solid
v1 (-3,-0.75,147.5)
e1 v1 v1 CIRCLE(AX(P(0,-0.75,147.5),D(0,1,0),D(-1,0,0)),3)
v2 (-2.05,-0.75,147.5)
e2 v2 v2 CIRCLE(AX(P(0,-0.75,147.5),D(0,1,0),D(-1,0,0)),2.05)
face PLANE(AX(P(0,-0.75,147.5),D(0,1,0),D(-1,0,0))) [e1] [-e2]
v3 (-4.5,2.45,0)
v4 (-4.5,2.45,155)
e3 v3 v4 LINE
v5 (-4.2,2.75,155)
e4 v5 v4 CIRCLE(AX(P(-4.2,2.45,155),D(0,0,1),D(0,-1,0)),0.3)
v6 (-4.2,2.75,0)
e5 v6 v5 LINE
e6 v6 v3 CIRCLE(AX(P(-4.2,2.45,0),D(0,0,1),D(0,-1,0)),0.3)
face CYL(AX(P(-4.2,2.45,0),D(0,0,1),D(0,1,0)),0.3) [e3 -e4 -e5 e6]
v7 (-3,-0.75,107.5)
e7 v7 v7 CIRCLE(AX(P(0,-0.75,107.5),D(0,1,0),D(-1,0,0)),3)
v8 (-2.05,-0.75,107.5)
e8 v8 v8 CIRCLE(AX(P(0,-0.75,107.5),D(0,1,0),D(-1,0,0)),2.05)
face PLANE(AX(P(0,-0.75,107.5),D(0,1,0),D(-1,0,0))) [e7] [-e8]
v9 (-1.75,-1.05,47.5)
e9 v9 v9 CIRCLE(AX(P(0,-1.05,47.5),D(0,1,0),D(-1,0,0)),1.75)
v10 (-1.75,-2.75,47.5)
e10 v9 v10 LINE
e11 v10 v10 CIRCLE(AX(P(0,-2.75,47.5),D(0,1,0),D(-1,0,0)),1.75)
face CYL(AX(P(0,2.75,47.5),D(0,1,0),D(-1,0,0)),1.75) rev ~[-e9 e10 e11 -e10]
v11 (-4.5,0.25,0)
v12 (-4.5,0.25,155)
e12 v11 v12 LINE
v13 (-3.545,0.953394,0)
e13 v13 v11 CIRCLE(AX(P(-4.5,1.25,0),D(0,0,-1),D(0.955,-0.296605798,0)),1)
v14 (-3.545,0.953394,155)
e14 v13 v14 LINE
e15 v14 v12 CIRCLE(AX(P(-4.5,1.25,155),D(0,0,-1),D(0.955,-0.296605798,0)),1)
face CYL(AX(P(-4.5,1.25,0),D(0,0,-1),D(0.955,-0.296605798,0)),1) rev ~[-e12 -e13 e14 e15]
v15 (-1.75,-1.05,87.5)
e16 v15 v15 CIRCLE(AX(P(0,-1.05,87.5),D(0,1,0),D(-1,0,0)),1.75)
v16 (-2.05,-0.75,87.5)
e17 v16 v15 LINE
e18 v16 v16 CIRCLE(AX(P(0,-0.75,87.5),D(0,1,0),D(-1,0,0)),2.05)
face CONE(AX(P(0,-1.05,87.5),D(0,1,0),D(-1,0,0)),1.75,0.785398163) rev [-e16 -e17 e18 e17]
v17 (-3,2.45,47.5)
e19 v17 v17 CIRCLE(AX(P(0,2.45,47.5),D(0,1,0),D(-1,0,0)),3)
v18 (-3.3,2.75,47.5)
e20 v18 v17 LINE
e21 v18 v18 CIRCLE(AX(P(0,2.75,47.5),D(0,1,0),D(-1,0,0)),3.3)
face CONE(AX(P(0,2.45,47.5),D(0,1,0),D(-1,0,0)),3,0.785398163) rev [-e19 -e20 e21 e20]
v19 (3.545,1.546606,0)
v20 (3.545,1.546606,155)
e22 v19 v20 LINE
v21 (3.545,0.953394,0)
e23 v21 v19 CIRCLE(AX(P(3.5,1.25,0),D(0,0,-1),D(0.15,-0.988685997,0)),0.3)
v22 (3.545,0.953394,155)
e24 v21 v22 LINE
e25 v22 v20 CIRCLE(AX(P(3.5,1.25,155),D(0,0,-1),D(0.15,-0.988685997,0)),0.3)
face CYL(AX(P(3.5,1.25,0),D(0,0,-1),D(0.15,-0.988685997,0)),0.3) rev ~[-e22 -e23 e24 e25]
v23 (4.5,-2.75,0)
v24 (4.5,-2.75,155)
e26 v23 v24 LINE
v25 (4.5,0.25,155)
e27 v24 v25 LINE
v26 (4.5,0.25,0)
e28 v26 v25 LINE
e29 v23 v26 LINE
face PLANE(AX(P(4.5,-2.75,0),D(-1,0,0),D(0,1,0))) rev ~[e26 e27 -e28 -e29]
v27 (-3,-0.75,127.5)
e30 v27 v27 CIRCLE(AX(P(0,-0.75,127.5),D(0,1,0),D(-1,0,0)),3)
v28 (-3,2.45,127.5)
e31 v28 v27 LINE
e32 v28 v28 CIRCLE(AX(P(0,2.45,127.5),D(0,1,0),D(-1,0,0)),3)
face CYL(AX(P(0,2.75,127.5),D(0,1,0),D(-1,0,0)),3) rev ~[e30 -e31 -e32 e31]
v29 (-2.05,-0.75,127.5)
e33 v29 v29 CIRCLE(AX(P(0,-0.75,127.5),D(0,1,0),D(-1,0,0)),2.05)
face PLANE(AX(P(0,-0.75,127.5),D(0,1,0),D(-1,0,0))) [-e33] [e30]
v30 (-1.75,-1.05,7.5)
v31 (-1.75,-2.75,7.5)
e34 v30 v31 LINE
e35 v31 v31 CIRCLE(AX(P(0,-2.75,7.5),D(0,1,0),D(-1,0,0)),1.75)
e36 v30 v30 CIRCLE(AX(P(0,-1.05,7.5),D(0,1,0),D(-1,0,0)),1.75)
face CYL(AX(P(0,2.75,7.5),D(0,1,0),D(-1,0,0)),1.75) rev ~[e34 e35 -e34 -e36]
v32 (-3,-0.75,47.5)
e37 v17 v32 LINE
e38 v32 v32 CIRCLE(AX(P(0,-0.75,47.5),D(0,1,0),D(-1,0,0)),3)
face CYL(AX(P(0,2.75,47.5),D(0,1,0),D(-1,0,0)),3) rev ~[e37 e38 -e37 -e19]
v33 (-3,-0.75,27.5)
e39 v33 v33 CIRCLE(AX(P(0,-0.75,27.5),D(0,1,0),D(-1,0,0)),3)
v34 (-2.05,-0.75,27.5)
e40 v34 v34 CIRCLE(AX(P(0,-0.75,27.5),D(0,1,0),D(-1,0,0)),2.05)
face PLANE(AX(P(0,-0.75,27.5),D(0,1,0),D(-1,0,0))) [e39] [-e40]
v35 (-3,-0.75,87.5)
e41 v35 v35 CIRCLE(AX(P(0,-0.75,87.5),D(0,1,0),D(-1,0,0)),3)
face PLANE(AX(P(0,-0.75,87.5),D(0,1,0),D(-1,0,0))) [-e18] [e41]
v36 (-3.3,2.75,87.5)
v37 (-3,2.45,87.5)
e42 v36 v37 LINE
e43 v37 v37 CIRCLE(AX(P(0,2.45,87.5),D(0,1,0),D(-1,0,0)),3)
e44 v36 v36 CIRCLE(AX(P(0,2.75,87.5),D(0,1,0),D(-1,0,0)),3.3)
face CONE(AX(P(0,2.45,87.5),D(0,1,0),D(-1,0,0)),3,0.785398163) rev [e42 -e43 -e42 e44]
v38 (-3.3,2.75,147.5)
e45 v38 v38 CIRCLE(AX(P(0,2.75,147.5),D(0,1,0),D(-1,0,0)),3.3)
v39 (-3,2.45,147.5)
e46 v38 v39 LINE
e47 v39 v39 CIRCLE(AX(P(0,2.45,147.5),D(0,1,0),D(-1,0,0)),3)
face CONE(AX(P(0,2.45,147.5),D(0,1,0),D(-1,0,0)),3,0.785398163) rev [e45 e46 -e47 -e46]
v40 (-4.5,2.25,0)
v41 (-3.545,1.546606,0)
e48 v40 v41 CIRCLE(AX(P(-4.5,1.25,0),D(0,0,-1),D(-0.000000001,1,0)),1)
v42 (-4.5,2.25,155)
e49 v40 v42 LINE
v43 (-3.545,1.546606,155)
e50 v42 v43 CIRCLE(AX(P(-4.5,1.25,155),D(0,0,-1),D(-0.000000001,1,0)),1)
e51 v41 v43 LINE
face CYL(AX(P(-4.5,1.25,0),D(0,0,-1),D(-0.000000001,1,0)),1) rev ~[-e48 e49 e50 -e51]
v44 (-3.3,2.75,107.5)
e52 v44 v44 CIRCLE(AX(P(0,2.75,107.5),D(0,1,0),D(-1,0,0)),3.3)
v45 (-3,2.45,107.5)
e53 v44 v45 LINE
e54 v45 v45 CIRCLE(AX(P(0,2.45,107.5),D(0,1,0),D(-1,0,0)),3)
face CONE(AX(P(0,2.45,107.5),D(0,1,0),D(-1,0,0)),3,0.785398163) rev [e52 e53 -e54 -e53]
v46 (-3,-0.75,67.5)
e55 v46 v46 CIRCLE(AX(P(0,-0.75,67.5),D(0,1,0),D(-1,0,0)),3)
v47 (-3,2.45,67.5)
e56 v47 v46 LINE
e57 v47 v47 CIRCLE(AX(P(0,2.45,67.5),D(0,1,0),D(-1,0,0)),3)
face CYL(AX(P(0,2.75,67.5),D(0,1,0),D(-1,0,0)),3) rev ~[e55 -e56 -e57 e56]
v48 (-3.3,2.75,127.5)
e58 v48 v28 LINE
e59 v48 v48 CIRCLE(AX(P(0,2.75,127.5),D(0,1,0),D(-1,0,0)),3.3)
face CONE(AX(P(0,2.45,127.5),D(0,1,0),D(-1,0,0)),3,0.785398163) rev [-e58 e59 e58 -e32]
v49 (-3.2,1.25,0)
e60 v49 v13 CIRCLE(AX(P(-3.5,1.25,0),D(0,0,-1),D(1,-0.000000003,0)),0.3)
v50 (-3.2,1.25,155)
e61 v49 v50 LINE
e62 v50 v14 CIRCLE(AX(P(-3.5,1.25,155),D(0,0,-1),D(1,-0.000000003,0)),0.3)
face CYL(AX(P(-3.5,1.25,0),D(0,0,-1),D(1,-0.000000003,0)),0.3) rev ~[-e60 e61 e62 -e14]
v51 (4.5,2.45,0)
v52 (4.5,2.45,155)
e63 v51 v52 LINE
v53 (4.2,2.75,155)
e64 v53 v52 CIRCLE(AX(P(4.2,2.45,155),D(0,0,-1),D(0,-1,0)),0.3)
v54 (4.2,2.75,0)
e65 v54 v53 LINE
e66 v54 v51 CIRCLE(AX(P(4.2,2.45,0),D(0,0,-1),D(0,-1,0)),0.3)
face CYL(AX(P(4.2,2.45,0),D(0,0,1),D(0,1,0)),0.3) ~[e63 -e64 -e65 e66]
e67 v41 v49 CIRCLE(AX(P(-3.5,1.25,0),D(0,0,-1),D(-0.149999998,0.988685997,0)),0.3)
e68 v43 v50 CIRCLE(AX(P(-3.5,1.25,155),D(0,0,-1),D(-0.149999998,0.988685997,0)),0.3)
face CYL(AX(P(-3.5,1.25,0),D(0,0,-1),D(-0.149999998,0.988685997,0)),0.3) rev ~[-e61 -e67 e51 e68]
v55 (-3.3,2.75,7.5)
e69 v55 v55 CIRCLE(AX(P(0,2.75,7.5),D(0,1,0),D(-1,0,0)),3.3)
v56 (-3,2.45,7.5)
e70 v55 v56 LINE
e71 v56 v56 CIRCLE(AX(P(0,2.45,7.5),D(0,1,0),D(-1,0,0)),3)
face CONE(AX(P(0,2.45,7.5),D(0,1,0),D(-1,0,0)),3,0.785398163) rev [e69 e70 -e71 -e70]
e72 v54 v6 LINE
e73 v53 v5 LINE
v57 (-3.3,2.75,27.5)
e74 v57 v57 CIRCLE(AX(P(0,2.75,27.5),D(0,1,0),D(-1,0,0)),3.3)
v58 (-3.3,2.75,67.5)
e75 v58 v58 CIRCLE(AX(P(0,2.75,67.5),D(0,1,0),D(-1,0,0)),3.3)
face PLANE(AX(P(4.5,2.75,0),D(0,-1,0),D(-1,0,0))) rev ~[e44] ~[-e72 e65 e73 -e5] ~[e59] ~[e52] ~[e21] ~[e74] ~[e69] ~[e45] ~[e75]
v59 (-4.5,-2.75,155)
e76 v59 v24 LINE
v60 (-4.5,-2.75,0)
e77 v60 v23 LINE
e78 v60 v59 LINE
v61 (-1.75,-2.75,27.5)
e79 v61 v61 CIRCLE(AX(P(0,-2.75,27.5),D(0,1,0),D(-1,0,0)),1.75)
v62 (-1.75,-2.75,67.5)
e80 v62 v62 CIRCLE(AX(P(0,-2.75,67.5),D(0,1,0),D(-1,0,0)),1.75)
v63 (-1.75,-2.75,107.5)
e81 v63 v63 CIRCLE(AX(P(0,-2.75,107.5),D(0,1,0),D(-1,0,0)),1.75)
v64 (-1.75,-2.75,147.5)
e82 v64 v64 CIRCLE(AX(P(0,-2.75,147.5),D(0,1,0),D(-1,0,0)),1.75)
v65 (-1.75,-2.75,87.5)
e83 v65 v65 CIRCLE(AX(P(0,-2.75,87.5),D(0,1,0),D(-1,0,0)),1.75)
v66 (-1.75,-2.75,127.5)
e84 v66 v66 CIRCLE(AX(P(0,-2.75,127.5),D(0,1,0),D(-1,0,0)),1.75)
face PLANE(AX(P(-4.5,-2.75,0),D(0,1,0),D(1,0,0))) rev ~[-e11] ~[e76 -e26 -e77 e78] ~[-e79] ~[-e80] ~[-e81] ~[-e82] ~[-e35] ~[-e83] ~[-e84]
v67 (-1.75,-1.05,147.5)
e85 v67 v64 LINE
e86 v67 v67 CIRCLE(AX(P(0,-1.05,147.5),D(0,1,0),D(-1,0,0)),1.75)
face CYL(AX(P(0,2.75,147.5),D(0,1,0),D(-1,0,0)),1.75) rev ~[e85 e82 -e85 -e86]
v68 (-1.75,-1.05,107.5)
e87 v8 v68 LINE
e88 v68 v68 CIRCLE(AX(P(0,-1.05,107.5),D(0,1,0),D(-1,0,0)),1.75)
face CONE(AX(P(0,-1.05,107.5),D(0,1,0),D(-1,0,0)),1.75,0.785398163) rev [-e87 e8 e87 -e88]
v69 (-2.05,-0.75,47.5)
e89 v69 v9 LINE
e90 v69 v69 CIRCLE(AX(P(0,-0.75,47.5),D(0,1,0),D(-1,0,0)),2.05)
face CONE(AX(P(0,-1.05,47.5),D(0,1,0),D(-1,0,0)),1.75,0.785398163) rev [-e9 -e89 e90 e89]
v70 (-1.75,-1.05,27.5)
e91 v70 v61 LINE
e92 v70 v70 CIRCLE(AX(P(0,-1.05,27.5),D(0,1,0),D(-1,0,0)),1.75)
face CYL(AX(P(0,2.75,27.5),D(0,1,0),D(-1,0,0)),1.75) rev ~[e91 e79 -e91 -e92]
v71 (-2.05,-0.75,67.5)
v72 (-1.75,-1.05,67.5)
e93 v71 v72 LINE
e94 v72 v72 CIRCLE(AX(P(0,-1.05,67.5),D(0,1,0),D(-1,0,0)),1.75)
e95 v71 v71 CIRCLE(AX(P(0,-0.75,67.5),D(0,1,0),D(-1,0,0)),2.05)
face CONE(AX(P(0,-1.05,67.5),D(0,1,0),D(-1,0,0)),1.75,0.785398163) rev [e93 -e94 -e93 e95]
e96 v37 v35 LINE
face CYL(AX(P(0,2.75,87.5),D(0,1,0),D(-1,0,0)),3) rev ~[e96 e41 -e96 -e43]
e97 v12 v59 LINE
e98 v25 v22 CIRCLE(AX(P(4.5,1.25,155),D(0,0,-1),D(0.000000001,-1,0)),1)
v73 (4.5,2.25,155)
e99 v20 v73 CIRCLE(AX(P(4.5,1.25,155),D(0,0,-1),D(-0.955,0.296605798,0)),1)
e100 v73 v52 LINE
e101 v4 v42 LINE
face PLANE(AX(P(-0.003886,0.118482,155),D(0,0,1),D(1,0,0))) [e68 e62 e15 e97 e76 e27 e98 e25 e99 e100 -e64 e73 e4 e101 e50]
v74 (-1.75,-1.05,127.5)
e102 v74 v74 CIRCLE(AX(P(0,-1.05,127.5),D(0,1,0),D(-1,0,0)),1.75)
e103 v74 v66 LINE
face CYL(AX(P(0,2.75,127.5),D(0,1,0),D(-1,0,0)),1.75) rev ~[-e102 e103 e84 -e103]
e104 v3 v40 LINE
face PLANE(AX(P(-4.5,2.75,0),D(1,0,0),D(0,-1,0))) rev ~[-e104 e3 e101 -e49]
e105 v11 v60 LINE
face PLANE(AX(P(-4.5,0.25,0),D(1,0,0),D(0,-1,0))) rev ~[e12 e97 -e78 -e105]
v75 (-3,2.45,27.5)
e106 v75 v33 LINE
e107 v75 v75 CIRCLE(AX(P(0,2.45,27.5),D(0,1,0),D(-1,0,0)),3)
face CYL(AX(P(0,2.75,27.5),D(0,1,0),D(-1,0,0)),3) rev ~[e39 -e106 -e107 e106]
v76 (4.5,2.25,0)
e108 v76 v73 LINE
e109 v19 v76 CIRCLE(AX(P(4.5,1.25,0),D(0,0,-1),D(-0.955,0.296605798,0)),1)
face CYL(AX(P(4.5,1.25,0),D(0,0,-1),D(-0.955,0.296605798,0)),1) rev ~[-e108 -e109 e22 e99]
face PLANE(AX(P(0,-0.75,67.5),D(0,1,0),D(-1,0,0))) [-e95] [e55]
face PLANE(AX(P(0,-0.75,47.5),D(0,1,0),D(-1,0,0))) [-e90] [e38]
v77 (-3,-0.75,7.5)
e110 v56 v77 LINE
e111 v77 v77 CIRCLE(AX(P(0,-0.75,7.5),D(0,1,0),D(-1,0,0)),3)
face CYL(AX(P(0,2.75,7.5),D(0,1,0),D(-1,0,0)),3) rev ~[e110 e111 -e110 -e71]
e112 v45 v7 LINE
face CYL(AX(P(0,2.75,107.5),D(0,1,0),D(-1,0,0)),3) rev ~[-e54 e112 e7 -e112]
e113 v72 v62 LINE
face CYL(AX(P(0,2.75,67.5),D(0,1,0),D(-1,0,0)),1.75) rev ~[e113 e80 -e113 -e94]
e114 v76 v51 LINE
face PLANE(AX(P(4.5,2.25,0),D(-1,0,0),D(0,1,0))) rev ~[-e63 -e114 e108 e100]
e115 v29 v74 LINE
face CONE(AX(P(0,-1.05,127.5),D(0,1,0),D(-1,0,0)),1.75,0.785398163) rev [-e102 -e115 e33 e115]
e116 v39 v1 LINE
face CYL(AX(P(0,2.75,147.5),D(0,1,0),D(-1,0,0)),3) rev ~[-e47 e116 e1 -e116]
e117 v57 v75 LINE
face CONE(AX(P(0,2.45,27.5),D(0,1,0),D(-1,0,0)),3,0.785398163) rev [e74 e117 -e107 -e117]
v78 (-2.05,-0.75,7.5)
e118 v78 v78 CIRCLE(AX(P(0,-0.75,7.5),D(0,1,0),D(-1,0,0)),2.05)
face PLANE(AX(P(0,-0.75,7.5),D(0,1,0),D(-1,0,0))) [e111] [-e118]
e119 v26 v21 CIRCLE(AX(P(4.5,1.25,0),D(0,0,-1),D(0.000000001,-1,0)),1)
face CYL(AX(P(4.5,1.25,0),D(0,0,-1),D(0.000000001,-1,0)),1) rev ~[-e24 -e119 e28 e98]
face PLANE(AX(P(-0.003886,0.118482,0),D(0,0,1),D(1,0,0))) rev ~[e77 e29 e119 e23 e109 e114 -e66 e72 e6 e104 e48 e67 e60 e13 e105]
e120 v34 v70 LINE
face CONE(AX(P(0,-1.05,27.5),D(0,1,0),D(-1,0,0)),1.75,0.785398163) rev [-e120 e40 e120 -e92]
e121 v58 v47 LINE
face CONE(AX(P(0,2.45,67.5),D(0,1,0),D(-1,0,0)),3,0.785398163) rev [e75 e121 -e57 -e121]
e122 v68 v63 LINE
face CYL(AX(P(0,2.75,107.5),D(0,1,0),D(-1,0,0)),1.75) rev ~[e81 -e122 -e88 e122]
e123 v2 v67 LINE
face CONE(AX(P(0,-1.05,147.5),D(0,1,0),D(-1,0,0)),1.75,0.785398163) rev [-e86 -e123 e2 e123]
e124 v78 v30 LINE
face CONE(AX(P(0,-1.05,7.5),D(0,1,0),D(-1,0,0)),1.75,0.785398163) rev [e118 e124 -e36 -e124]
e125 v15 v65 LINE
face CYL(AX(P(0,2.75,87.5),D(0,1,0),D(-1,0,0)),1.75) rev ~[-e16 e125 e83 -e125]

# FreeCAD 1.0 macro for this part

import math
import FreeCAD as App
import Part
import Sketcher


def edges_at(feature, points):
    """Names of the edges that pass closest to the given points."""
    edges = feature.Shape.Edges
    near = lambda p: min(range(len(edges)), key=lambda i: edges[i].distToShape(Part.Vertex(*p))[0])
    return sorted({f"Edge{near(p) + 1}" for p in points})

doc = App.newDocument("Part")
body = doc.addObject("PartDesign::Body", "Body")

# Sketch on XY plane
sketch1 = doc.addObject("Sketcher::SketchObject", "Sketch")
body.addObject(sketch1)
sketch1.AttachmentSupport = (doc.XY_Plane, [""])
sketch1.MapMode = "FlatFace"
sketch1.addGeometry([
    Part.LineSegment(App.Vector(4.5, 2.75, 0), App.Vector(-4.5, 2.75, 0)),  # 0
    Part.LineSegment(App.Vector(-4.5, 2.75, 0), App.Vector(-4.5, 2.25, 0)),  # 1
    Part.ArcOfCircle(Part.Circle(App.Vector(-4.5, 1.25, 0), App.Vector(0, 0, 1), 1), math.radians(17), math.radians(90)),  # 2
    Part.ArcOfCircle(Part.Circle(App.Vector(-3.5, 1.25, 0), App.Vector(0, 0, 1), 0.3), math.radians(0), math.radians(99)),  # 3
    Part.ArcOfCircle(Part.Circle(App.Vector(-3.5, 1.25, 0), App.Vector(0, 0, 1), 0.3), math.radians(-99), math.radians(0)),  # 4
    Part.ArcOfCircle(Part.Circle(App.Vector(-4.5, 1.25, 0), App.Vector(0, 0, 1), 1), math.radians(-90), math.radians(-17)),  # 5
    Part.LineSegment(App.Vector(-4.5, 0.25, 0), App.Vector(-4.5, -2.75, 0)),  # 6
    Part.LineSegment(App.Vector(-4.5, -2.75, 0), App.Vector(4.5, -2.75, 0)),  # 7
    Part.LineSegment(App.Vector(4.5, -2.75, 0), App.Vector(4.5, 0.25, 0)),  # 8
    Part.ArcOfCircle(Part.Circle(App.Vector(4.5, 1.25, 0), App.Vector(0, 0, 1), 1), math.radians(-163), math.radians(-90)),  # 9
    Part.ArcOfCircle(Part.Circle(App.Vector(3.5, 1.25, 0), App.Vector(0, 0, 1), 0.3), math.radians(81), math.radians(279)),  # 10
    Part.ArcOfCircle(Part.Circle(App.Vector(4.5, 1.25, 0), App.Vector(0, 0, 1), 1), math.radians(90), math.radians(163)),  # 11
    Part.LineSegment(App.Vector(4.5, 2.25, 0), App.Vector(4.5, 2.75, 0)),  # 12
], False)
sketch1.addConstraint([
    Sketcher.Constraint("Coincident", 0, 2, 1, 1),
    Sketcher.Constraint("Coincident", 1, 2, 2, 2),
    Sketcher.Constraint("Coincident", 2, 1, 3, 2),
    Sketcher.Constraint("Tangent", 3, 1, 4, 2),
    Sketcher.Constraint("Coincident", 4, 1, 5, 2),
    Sketcher.Constraint("Coincident", 5, 1, 6, 1),
    Sketcher.Constraint("Coincident", 6, 2, 7, 1),
    Sketcher.Constraint("Coincident", 7, 2, 8, 1),
    Sketcher.Constraint("Coincident", 8, 2, 9, 2),
    Sketcher.Constraint("Coincident", 9, 1, 10, 2),
    Sketcher.Constraint("Coincident", 10, 1, 11, 2),
    Sketcher.Constraint("Coincident", 11, 1, 12, 1),
    Sketcher.Constraint("Coincident", 12, 2, 0, 1),
    Sketcher.Constraint("Horizontal", 0),
    Sketcher.Constraint("Vertical", 1),
    Sketcher.Constraint("Vertical", 6),
    Sketcher.Constraint("Horizontal", 7),
    Sketcher.Constraint("Vertical", 8),
    Sketcher.Constraint("Vertical", 12),
    Sketcher.Constraint("Coincident", 5, 3, 2, 3),
    Sketcher.Constraint("Coincident", 11, 3, 9, 3),
    Sketcher.Constraint("Equal", 3, 4),
    Sketcher.Constraint("Equal", 2, 5),
    Sketcher.Constraint("Equal", 5, 9),
    Sketcher.Constraint("Equal", 4, 10),
    Sketcher.Constraint("Equal", 9, 11),
    Sketcher.Constraint("Symmetric", 0, 2, 7, 2, -1, 1),
    Sketcher.Constraint("Symmetric", 2, 3, 9, 3, -2),
    Sketcher.Constraint("Symmetric", 3, 3, 10, 3, -2),
    Sketcher.Constraint("Horizontal", 2, 3, 3, 3),
    Sketcher.Constraint("Horizontal", 11, 3, 3, 1),
    Sketcher.Constraint("Vertical", 5, 3, 0, 2),
    Sketcher.Constraint("Vertical", 1, 2, 5, 1),
    Sketcher.Constraint("Vertical", 8, 2, 11, 1),
    Sketcher.Constraint("Radius", 2, 1.0),
    Sketcher.Constraint("Radius", 3, 0.3),
    Sketcher.Constraint("DistanceX", 0, 2, 0, 1, 9.0),
    Sketcher.Constraint("DistanceY", 6, 2, 6, 1, 3.0),
    Sketcher.Constraint("DistanceY", 1, 2, 1, 1, 0.5),
    Sketcher.Constraint("DistanceX", 2, 3, 3, 3, 1.0),
])
pad1 = doc.addObject("PartDesign::Pad", "Pad")
body.addObject(pad1)
pad1.Profile = sketch1
pad1.Length = 155
doc.recompute()

fillet = doc.addObject("PartDesign::Fillet", "Fillet")
body.addObject(fillet)
fillet.Base = (pad1, edges_at(pad1, [(-4.5, 2.75, 77.5), (4.5, 2.75, 77.5)]))
fillet.Radius = 0.3

# Sketch on XZ plane
sketch2 = doc.addObject("Sketcher::SketchObject", "Sketch001")
body.addObject(sketch2)
sketch2.AttachmentSupport = (doc.XZ_Plane, [""])
sketch2.MapMode = "FlatFace"
sketch2.AttachmentOffset = App.Placement(App.Vector(0, 0, -2.75), App.Rotation())
sketch2.addGeometry(Part.Circle(App.Vector(0, 7.5, 0), App.Vector(0, 0, 1), 1.8), False)
sketch2.addConstraint([
    Sketcher.Constraint("PointOnObject", 0, 3, -2),
    Sketcher.Constraint("Diameter", 0, 3.5),
    Sketcher.Constraint("DistanceY", -1, 1, 0, 3, 7.5),
])
pocket1 = doc.addObject("PartDesign::Pocket", "Pocket")
body.addObject(pocket1)
pocket1.Profile = sketch2
pocket1.Length = 155
pocket1.Reversed = True

# Sketch on XZ plane
sketch3 = doc.addObject("Sketcher::SketchObject", "Sketch002")
body.addObject(sketch3)
sketch3.AttachmentSupport = (doc.XZ_Plane, [""])
sketch3.MapMode = "FlatFace"
sketch3.AttachmentOffset = App.Placement(App.Vector(0, 0, -2.75), App.Rotation())
sketch3.addGeometry(Part.Circle(App.Vector(0, 7.5, 0), App.Vector(0, 0, 1), 3), False)
sketch3.addConstraint([
    Sketcher.Constraint("PointOnObject", 0, 3, -2),
    Sketcher.Constraint("Diameter", 0, 6.0),
    Sketcher.Constraint("DistanceY", -1, 1, 0, 3, 7.5),
])
pocket2 = doc.addObject("PartDesign::Pocket", "Pocket001")
body.addObject(pocket2)
pocket2.Profile = sketch3
pocket2.Length = 3.5
pocket2.Reversed = True
doc.recompute()

chamfer = doc.addObject("PartDesign::Chamfer", "Chamfer")
body.addObject(chamfer)
chamfer.Base = (pocket2, edges_at(pocket2, [(1.75, -0.75, 7.5), (3, 2.75, 7.5)]))
chamfer.Size = 0.3
doc.recompute()

linearpattern = doc.addObject("PartDesign::LinearPattern", "LinearPattern")
body.addObject(linearpattern)
linearpattern.Originals = [pocket1, pocket2]
linearpattern.Direction = (doc.Z_Axis, [""])
linearpattern.Mode = "offset"
linearpattern.Offset = 20
linearpattern.Occurrences = 8
body.Tip = linearpattern
doc.recompute()

chamfer2 = doc.addObject("PartDesign::Chamfer", "Chamfer001")
body.addObject(chamfer2)
chamfer2.Base = (linearpattern, edges_at(linearpattern, [
    (1.75, -0.75, 27.5),
    (3, 2.75, 27.5),
    (1.75, -0.75, 47.5),
    (3, 2.75, 47.5),
    (1.75, -0.75, 67.5),
    (3, 2.75, 67.5),
    (1.75, -0.75, 87.5),
    (3, 2.75, 87.5),
    (1.75, -0.75, 107.5),
    (3, 2.75, 107.5),
    (1.75, -0.75, 127.5),
    (3, 2.75, 127.5),
    (1.75, -0.75, 147.5),
    (3, 2.75, 147.5),
]))
chamfer2.Size = 0.3

doc.recompute()
